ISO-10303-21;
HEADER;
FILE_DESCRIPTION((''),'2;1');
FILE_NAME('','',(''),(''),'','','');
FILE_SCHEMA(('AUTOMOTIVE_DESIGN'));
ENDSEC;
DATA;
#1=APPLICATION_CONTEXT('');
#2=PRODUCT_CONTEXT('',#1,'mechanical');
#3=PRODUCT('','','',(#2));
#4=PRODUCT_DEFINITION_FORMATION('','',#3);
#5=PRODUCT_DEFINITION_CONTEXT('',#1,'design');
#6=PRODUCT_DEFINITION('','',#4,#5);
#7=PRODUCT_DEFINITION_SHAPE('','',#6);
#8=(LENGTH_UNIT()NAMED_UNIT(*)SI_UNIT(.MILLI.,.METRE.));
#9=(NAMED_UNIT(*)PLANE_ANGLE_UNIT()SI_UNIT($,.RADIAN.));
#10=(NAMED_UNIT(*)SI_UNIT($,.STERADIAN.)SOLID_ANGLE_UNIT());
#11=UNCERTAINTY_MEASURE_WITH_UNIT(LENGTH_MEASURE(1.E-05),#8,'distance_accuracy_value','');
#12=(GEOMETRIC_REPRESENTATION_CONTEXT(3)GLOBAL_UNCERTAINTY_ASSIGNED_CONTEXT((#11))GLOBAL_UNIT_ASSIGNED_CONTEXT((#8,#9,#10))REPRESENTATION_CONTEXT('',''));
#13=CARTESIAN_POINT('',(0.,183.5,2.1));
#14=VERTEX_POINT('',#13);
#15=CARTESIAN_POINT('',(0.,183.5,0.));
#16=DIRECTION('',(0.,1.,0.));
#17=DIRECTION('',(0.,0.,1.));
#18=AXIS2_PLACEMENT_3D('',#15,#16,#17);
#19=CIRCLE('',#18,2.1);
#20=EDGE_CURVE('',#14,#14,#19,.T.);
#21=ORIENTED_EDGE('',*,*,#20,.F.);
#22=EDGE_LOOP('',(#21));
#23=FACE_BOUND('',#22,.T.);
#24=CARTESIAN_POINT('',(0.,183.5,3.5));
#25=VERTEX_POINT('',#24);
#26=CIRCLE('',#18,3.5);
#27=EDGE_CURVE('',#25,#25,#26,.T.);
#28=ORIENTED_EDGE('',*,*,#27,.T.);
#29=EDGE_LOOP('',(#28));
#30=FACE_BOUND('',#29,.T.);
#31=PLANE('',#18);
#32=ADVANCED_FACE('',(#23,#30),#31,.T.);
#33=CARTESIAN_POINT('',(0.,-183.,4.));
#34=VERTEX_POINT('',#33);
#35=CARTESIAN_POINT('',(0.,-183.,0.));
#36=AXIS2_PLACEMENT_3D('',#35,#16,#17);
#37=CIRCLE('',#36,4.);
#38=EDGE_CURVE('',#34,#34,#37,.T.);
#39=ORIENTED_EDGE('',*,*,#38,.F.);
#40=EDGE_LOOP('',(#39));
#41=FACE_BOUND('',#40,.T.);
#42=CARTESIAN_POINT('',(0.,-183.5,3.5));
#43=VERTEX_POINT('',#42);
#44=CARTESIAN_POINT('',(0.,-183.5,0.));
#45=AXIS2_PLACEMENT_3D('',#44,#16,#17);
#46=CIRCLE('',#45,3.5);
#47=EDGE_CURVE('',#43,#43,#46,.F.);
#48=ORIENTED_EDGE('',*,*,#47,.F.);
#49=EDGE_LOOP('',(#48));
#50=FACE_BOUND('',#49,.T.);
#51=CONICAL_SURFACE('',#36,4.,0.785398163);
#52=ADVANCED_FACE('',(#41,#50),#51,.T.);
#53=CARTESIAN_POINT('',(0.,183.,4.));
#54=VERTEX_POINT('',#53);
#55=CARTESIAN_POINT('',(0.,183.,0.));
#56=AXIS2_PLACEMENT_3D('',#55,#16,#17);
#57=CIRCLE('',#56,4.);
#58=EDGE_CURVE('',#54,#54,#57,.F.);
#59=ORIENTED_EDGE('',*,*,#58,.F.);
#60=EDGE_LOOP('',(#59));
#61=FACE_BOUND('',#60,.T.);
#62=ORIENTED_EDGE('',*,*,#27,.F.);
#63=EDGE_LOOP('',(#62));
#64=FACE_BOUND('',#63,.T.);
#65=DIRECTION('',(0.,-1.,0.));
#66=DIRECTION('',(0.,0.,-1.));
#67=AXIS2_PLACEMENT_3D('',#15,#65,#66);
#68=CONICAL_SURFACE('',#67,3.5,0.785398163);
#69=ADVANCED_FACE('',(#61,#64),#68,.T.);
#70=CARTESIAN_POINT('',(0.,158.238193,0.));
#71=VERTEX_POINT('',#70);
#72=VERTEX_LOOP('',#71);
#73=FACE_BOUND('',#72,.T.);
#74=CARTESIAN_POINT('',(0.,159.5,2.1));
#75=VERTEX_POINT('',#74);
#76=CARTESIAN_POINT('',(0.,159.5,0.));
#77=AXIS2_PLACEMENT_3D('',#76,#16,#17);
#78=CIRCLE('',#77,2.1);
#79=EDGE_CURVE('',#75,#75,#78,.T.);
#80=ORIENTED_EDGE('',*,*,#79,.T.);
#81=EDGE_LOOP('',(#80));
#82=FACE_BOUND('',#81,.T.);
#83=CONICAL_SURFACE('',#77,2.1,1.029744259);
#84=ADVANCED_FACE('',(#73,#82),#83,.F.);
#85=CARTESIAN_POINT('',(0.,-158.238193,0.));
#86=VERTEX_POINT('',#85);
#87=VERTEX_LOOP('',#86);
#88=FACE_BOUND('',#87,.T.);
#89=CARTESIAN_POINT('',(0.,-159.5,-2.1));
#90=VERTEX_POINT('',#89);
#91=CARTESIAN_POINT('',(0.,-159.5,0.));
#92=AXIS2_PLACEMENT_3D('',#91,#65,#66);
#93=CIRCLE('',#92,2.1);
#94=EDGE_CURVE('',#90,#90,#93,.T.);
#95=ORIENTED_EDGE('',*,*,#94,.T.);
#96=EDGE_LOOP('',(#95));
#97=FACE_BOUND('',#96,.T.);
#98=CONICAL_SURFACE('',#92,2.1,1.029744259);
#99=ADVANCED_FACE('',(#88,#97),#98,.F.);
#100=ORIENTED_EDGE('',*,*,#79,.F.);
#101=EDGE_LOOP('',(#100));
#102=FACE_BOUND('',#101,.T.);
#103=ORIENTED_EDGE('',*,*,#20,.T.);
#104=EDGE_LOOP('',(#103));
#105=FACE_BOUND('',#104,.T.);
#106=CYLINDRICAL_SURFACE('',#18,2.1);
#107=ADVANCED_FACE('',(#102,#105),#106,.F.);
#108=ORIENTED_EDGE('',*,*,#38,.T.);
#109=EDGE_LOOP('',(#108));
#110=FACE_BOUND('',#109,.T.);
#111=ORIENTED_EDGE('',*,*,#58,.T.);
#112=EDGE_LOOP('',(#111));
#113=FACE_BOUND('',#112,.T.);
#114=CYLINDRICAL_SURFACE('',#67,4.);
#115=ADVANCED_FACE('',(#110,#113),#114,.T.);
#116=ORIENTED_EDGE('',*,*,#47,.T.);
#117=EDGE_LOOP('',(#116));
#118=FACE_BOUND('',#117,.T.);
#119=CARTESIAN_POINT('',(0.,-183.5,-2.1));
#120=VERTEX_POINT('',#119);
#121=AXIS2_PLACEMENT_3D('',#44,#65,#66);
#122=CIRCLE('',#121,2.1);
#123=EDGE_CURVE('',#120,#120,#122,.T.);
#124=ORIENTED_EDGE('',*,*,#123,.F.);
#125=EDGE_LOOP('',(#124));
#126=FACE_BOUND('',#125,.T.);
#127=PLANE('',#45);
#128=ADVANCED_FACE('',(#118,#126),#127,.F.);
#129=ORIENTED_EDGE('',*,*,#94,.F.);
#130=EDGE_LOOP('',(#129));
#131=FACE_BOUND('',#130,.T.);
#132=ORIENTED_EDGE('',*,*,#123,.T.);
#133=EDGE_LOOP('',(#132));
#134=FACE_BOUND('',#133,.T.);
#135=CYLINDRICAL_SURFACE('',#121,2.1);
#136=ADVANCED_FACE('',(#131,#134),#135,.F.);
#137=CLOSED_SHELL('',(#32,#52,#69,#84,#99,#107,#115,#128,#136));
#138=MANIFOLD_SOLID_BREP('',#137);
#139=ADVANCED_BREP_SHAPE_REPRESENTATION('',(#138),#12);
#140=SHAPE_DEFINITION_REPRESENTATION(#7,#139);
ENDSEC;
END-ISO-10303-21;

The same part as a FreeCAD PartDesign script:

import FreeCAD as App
import Part
import Sketcher

V = App.Vector
Q = App.Units.Quantity


def edges_at(feature, points):
    """Names of the edges that pass closest to the given points."""
    edges = feature.Shape.Edges
    near = lambda p: min(range(len(edges)), key=lambda i: edges[i].distToShape(Part.Vertex(*p))[0])
    return sorted({f"Edge{near(p) + 1}" for p in points})


def add_polygon(sketch, points):
    """Adds a closed chain of lines whose ends are joined by coincident constraints."""
    first, n = sketch.GeometryCount, len(points)
    for a, b in zip(points, points[1:] + points[:1]):
        sketch.addGeometry(Part.LineSegment(App.Vector(*a, 0), App.Vector(*b, 0)), False)
    for i in range(n):
        sketch.addConstraint(Sketcher.Constraint("Coincident", first + i, 2, first + (i + 1) % n, 1))

doc = App.newDocument("Part")
params = doc.addObject("Spreadsheet::Sheet", "Params")
for row, (alias, value) in enumerate([
    ("sketch1_diameter", "8 mm"),
    ("pad1_length", "367 mm"),
    ("chamfer_size", "0.5 mm"),
    ("sketch2_width", "24 mm"),
    ("sketch2_height", "2.1 mm"),
    ("groove_angle", "360 deg"),
], start=1):
    params.set(f"A{row}", alias)
    params.set(f"B{row}", "=" + value)
    params.setAlias(f"B{row}", alias)

body = doc.addObject("PartDesign::Body", "Body")

sketch1 = body.newObject("Sketcher::SketchObject", "Sketch")
sketch1.AttachmentSupport = (doc.getObject("XZ_Plane"), [""])
sketch1.MapMode = "FlatFace"
sketch1.addGeometry(Part.Circle(V(0, 0, 0), V(0, 0, 1), 4), False)
sketch1.addConstraint([
    Sketcher.Constraint("Coincident", 0, 3, -1, 1),
    Sketcher.Constraint("Diameter", 0, 8.0),
])
sketch1.setExpression("Constraints[1]", "Params.sketch1_diameter")
pad1 = body.newObject("PartDesign::Pad", "Pad")
pad1.Profile = sketch1
pad1.setExpression("Length", "Params.pad1_length")
pad1.Midplane = True
doc.recompute()

chamfer = body.newObject("PartDesign::Chamfer", "Chamfer")
chamfer.Base = (pad1, edges_at(pad1, [(0, -183.5, -4), (0, 183.5, -4)]))
chamfer.setExpression("Size", "Params.chamfer_size")

sketch2 = body.newObject("Sketcher::SketchObject", "Sketch001")
sketch2.AttachmentSupport = (doc.getObject("YZ_Plane"), [""])
sketch2.MapMode = "FlatFace"
add_polygon(sketch2, [(158.2, 0), (183.5, 0), (183.5, 2.1), (159.5, 2.1)])
sketch2.addConstraint([
    Sketcher.Constraint("Horizontal", 0),
    Sketcher.Constraint("Vertical", 1),
    Sketcher.Constraint("Horizontal", 2),
    Sketcher.Constraint("PointOnObject", 0, 2, -1),
    Sketcher.Constraint("DistanceX", 2, 2, 2, 1, 24.0),
    Sketcher.Constraint("Angle", 3, Q("-121 deg")),
    Sketcher.Constraint("DistanceY", 1, 1, 1, 2, 2.1),
    Sketcher.Constraint("DistanceX", -1, 1, 0, 2, 183.5),
])
sketch2.setExpression("Constraints[8]", "Params.sketch2_width")
sketch2.setExpression("Constraints[10]", "Params.sketch2_height")
groove = body.newObject("PartDesign::Groove", "Groove")
groove.Profile = sketch2
groove.ReferenceAxis = (sketch2, ["H_Axis"])
groove.setExpression("Angle", "Params.groove_angle")
doc.recompute()

mirrored = body.newObject("PartDesign::Mirrored", "Mirrored")
mirrored.Originals = [groove]
mirrored.MirrorPlane = (doc.getObject("XZ_Plane"), [""])
body.Tip = mirrored

doc.recompute()
